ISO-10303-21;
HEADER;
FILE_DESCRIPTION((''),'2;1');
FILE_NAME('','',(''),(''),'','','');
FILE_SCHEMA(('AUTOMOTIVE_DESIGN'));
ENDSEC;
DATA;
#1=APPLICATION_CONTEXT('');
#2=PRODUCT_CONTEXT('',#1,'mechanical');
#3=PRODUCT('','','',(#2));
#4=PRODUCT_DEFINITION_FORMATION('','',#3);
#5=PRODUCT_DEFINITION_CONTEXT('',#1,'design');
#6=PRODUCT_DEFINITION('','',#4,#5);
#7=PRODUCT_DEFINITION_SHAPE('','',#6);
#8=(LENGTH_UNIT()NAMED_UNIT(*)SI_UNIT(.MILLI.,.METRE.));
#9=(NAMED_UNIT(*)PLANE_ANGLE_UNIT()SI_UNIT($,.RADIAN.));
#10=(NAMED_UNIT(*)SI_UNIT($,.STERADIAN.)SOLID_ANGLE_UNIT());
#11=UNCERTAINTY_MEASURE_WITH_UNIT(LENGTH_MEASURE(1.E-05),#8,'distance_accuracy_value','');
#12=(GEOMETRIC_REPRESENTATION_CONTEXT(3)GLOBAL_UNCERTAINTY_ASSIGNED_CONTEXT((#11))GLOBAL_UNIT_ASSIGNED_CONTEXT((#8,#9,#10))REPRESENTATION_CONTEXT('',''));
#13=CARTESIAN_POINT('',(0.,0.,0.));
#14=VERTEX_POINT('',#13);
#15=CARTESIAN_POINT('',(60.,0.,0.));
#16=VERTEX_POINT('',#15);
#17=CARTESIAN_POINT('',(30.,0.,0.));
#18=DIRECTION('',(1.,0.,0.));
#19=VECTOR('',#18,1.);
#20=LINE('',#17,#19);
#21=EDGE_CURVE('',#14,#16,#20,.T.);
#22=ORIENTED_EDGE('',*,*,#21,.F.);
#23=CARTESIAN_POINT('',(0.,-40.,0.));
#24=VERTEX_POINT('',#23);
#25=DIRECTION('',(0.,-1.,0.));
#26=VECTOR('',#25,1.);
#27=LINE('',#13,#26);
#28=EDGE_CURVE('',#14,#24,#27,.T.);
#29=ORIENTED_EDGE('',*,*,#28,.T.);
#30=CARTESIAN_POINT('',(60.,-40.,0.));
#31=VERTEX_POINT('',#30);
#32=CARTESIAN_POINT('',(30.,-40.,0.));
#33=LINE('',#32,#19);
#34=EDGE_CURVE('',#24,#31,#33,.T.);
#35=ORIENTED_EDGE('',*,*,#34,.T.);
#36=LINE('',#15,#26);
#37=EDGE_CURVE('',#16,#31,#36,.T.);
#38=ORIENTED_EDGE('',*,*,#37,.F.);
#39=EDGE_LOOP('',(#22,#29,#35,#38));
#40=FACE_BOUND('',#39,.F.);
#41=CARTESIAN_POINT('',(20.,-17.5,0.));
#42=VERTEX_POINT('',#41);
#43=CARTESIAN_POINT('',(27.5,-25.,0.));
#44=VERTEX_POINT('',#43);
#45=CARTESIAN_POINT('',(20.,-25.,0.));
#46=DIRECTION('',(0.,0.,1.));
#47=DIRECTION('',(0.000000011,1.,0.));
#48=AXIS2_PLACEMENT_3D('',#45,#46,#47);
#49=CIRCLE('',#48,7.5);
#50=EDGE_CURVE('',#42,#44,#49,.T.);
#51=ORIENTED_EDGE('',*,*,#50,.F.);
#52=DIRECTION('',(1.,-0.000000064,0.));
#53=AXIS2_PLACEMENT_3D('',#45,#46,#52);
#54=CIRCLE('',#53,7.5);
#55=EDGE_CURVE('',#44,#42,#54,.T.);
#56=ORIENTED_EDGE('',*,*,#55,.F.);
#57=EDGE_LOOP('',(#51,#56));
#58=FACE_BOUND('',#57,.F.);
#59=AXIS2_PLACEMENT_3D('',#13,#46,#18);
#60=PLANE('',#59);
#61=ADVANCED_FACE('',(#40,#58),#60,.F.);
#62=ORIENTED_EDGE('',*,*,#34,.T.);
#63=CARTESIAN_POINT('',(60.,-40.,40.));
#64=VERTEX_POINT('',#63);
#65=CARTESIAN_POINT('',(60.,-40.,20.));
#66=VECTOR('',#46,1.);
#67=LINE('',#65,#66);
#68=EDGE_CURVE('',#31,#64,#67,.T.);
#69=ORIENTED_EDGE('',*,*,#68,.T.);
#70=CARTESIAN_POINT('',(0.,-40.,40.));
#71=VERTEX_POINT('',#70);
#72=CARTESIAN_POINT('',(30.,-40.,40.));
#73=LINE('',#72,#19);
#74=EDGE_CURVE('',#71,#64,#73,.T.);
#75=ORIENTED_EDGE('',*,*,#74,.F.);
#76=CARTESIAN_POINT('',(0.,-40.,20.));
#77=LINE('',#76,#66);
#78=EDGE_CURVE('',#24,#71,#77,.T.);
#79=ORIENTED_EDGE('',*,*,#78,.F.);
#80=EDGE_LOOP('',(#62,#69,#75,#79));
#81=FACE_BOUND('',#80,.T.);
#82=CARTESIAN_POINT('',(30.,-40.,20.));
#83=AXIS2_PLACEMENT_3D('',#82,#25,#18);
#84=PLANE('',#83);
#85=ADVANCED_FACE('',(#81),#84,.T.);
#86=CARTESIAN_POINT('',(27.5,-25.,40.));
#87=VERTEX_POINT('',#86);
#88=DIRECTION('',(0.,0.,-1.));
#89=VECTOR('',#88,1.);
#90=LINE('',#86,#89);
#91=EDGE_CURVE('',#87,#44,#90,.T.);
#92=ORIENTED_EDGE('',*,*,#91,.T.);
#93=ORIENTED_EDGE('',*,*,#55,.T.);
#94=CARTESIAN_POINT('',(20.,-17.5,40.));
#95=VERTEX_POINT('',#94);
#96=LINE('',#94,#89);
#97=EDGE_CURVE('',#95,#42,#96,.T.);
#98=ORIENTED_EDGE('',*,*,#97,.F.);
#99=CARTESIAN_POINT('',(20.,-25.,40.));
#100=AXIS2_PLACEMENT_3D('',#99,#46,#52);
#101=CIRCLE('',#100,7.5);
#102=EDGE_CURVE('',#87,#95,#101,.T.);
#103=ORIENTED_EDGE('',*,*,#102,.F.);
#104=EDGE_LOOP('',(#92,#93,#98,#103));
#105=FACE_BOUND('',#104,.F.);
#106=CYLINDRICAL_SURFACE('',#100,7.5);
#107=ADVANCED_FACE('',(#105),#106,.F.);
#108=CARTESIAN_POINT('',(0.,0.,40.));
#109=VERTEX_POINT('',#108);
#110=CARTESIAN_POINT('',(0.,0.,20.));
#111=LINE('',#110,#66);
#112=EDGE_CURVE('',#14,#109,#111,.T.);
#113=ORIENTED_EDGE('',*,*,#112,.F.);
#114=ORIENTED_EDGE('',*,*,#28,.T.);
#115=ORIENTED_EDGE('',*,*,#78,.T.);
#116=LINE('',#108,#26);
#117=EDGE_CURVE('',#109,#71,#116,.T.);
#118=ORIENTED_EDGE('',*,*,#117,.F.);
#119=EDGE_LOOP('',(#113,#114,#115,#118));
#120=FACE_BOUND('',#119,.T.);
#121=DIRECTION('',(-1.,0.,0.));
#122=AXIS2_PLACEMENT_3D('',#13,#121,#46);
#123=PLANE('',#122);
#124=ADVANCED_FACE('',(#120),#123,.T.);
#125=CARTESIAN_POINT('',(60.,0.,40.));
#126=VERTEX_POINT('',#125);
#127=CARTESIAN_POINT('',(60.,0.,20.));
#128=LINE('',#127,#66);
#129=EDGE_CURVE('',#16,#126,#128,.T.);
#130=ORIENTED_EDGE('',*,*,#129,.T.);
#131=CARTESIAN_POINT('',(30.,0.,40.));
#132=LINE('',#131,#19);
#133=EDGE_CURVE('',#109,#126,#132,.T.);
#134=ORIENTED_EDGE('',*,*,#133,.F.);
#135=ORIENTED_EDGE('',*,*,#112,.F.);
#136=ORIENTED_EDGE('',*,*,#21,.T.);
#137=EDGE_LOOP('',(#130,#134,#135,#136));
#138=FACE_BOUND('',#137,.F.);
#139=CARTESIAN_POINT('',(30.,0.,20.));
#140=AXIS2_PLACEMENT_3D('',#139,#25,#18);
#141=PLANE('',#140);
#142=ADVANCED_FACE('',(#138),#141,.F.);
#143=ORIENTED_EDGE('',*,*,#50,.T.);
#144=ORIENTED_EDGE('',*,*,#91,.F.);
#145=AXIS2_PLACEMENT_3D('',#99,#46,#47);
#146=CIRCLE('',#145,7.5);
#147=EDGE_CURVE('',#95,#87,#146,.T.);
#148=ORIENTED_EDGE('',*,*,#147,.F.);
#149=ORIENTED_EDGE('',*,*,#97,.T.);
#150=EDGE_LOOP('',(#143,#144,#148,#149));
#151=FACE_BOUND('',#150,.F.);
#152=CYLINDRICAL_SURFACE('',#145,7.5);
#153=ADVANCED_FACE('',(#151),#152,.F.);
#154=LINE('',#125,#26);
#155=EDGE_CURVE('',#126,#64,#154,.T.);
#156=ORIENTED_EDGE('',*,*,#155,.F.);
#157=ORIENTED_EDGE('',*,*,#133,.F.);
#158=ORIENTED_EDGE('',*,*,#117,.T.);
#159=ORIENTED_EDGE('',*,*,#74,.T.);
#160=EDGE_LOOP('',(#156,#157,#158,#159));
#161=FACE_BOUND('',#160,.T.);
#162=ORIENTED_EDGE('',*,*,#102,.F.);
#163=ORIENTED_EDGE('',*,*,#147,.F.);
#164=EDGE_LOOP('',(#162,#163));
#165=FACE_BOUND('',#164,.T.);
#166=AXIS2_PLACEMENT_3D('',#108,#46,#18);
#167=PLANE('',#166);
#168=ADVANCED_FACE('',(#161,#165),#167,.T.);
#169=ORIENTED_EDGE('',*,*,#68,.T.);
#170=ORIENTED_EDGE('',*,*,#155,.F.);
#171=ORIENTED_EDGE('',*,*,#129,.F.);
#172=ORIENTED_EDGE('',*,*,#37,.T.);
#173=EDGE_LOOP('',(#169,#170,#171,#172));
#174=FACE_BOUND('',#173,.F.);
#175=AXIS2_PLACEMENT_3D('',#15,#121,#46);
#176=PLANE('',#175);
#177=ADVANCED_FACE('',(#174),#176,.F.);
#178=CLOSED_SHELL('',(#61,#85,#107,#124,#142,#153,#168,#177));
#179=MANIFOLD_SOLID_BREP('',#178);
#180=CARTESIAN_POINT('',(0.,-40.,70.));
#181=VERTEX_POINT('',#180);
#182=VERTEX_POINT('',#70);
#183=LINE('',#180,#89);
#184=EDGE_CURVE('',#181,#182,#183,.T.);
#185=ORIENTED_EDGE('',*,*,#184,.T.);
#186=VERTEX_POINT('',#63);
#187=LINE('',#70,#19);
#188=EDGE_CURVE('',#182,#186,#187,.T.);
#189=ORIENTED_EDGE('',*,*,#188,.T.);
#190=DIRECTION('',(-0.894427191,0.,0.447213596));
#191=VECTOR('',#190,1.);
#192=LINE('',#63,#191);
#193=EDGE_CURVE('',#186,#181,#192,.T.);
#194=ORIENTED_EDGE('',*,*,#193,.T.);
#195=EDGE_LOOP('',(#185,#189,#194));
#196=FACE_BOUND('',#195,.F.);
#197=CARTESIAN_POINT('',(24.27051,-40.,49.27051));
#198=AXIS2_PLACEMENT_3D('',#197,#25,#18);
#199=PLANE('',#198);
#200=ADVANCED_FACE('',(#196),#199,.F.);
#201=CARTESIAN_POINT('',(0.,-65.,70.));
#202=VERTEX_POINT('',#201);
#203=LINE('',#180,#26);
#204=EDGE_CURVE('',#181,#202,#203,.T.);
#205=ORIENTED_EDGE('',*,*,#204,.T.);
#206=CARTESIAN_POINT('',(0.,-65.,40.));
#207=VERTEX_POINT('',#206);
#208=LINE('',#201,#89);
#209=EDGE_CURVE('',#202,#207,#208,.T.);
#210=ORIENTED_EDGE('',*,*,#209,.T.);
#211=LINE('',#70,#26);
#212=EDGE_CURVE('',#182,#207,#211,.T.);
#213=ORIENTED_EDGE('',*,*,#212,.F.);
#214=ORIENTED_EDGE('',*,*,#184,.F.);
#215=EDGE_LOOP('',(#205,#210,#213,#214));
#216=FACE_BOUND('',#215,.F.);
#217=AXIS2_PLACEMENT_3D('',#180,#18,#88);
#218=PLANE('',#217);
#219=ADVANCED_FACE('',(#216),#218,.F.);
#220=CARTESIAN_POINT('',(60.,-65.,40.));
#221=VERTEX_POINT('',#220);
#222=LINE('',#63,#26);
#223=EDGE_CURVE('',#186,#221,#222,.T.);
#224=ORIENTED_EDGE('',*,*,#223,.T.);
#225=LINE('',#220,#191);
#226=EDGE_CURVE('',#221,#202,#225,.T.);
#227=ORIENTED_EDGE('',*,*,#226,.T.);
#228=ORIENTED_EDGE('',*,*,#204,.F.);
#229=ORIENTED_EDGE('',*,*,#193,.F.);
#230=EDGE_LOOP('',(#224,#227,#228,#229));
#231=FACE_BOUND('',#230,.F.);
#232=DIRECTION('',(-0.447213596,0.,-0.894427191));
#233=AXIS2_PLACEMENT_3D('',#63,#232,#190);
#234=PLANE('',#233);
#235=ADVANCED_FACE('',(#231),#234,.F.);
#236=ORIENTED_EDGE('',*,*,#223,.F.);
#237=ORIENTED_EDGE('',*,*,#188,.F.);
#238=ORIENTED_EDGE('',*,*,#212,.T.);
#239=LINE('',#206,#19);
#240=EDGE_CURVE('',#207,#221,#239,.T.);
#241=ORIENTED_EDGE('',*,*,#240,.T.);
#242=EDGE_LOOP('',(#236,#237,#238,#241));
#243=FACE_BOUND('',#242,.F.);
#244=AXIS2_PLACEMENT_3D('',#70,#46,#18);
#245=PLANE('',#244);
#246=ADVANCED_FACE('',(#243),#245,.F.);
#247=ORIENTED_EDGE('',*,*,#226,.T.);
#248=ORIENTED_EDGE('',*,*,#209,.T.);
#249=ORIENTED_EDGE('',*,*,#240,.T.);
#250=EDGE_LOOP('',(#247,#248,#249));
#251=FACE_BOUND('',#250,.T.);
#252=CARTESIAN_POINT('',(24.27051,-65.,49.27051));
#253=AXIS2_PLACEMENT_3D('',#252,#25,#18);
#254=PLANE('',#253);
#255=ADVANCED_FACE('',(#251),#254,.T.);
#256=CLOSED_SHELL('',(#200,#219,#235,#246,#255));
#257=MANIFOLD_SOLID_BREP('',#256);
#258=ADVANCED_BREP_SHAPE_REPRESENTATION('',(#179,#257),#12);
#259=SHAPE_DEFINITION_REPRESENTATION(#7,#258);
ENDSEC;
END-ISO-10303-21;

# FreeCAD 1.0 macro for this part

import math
import FreeCAD as App
import Part
import Sketcher

V = App.Vector


def add_polygon(sketch, points):
    """Adds a closed chain of lines whose ends are joined by coincident constraints."""
    first, n = sketch.GeometryCount, len(points)
    for a, b in zip(points, points[1:] + points[:1]):
        sketch.addGeometry(Part.LineSegment(App.Vector(*a, 0), App.Vector(*b, 0)), False)
    for i in range(n):
        sketch.addConstraint(Sketcher.Constraint("Coincident", first + i, 2, first + (i + 1) % n, 1))

doc = App.newDocument("Part")
params = doc.addObject("Spreadsheet::Sheet", "Params")
for row, (alias, value) in enumerate([
    ("sketch1_width", "60 mm"),
    ("sketch1_height", "40 mm"),
    ("pad1_length", "40 mm"),
    ("sketch2_radius", "7.5 mm"),
    ("sketch3_width", "60 mm"),
    ("sketch3_height", "30 mm"),
    ("pad2_length", "25 mm"),
], start=1):
    params.set(f"A{row}", alias)
    params.set(f"B{row}", "=" + value)
    params.setAlias(f"B{row}", alias)

body = doc.addObject("PartDesign::Body", "Body")

# Sketch on XZ plane
sketch1 = body.newObject("Sketcher::SketchObject", "Sketch")
sketch1.AttachmentSupport = (doc.getObject("XZ_Plane"), [""])
sketch1.MapMode = "FlatFace"
add_polygon(sketch1, [(0, 40), (0, 0), (60, 0), (60, 40)])  # lines 0-3
sketch1.addConstraint([
    Sketcher.Constraint("Vertical", 0),
    Sketcher.Constraint("Horizontal", 1),
    Sketcher.Constraint("Vertical", 2),
    Sketcher.Constraint("Horizontal", 3),
    Sketcher.Constraint("Coincident", 0, 2, -1, 1),
    Sketcher.Constraint("DistanceX", 1, 1, 1, 2, 60.0),
    Sketcher.Constraint("DistanceY", 0, 2, 0, 1, 40.0),
])
sketch1.setExpression("Constraints[9]", "Params.sketch1_width")
sketch1.setExpression("Constraints[10]", "Params.sketch1_height")
pad1 = body.newObject("PartDesign::Pad", "Pad")
pad1.Profile = sketch1
pad1.setExpression("Length", "Params.pad1_length")

# Sketch on XY plane
sketch2 = body.newObject("Sketcher::SketchObject", "Sketch001")
sketch2.AttachmentSupport = (doc.getObject("XY_Plane"), [""])
sketch2.MapMode = "FlatFace"
sketch2.AttachmentOffset = App.Placement(V(0, 0, 40), App.Rotation())
sketch2.addGeometry([
    Part.ArcOfCircle(Part.Circle(V(20, -25, 0), V(0, 0, 1), 7), math.radians(0), math.radians(90)),
    Part.ArcOfCircle(Part.Circle(V(20, -25, 0), V(0, 0, 1), 8), math.radians(90), math.radians(360)),
], False)
sketch2.addConstraint([
    Sketcher.Constraint("Tangent", 0, 1, 1, 2),
    Sketcher.Constraint("Coincident", 1, 1, 0, 2),
    Sketcher.Constraint("Horizontal", 1, 3, 0, 1),
    Sketcher.Constraint("Vertical", 0, 3, 1, 1),
    Sketcher.Constraint("Radius", 0, 7.5),
    Sketcher.Constraint("DistanceX", -1, 1, 0, 3, 20.0),
    Sketcher.Constraint("DistanceY", 0, 3, -1, 1, 25.0),
])
sketch2.setExpression("Constraints[4]", "Params.sketch2_radius")
pocket1 = body.newObject("PartDesign::Pocket", "Pocket")
pocket1.Profile = sketch2
pocket1.Type = "ThroughAll"
body2 = doc.addObject("PartDesign::Body", "Body001")

# Sketch on XZ plane
sketch3 = body2.newObject("Sketcher::SketchObject", "Sketch002")
sketch3.AttachmentSupport = (doc.getObject("XZ_Plane001"), [""])
sketch3.MapMode = "FlatFace"
sketch3.AttachmentOffset = App.Placement(V(0, 0, 40), App.Rotation())
add_polygon(sketch3, [(0, 70), (0, 40), (60, 40)])  # lines 0-2
sketch3.addConstraint([
    Sketcher.Constraint("Vertical", 0),
    Sketcher.Constraint("Horizontal", 1),
    Sketcher.Constraint("PointOnObject", 0, 2, -2),
    Sketcher.Constraint("DistanceX", 1, 1, 1, 2, 60.0),
    Sketcher.Constraint("DistanceY", 0, 2, 0, 1, 30.0),
    Sketcher.Constraint("DistanceY", -1, 1, 0, 2, 40.0),
])
sketch3.setExpression("Constraints[6]", "Params.sketch3_width")
sketch3.setExpression("Constraints[7]", "Params.sketch3_height")
pad2 = body2.newObject("PartDesign::Pad", "Pad001")
pad2.Profile = sketch3
pad2.setExpression("Length", "Params.pad2_length")

doc.recompute()
